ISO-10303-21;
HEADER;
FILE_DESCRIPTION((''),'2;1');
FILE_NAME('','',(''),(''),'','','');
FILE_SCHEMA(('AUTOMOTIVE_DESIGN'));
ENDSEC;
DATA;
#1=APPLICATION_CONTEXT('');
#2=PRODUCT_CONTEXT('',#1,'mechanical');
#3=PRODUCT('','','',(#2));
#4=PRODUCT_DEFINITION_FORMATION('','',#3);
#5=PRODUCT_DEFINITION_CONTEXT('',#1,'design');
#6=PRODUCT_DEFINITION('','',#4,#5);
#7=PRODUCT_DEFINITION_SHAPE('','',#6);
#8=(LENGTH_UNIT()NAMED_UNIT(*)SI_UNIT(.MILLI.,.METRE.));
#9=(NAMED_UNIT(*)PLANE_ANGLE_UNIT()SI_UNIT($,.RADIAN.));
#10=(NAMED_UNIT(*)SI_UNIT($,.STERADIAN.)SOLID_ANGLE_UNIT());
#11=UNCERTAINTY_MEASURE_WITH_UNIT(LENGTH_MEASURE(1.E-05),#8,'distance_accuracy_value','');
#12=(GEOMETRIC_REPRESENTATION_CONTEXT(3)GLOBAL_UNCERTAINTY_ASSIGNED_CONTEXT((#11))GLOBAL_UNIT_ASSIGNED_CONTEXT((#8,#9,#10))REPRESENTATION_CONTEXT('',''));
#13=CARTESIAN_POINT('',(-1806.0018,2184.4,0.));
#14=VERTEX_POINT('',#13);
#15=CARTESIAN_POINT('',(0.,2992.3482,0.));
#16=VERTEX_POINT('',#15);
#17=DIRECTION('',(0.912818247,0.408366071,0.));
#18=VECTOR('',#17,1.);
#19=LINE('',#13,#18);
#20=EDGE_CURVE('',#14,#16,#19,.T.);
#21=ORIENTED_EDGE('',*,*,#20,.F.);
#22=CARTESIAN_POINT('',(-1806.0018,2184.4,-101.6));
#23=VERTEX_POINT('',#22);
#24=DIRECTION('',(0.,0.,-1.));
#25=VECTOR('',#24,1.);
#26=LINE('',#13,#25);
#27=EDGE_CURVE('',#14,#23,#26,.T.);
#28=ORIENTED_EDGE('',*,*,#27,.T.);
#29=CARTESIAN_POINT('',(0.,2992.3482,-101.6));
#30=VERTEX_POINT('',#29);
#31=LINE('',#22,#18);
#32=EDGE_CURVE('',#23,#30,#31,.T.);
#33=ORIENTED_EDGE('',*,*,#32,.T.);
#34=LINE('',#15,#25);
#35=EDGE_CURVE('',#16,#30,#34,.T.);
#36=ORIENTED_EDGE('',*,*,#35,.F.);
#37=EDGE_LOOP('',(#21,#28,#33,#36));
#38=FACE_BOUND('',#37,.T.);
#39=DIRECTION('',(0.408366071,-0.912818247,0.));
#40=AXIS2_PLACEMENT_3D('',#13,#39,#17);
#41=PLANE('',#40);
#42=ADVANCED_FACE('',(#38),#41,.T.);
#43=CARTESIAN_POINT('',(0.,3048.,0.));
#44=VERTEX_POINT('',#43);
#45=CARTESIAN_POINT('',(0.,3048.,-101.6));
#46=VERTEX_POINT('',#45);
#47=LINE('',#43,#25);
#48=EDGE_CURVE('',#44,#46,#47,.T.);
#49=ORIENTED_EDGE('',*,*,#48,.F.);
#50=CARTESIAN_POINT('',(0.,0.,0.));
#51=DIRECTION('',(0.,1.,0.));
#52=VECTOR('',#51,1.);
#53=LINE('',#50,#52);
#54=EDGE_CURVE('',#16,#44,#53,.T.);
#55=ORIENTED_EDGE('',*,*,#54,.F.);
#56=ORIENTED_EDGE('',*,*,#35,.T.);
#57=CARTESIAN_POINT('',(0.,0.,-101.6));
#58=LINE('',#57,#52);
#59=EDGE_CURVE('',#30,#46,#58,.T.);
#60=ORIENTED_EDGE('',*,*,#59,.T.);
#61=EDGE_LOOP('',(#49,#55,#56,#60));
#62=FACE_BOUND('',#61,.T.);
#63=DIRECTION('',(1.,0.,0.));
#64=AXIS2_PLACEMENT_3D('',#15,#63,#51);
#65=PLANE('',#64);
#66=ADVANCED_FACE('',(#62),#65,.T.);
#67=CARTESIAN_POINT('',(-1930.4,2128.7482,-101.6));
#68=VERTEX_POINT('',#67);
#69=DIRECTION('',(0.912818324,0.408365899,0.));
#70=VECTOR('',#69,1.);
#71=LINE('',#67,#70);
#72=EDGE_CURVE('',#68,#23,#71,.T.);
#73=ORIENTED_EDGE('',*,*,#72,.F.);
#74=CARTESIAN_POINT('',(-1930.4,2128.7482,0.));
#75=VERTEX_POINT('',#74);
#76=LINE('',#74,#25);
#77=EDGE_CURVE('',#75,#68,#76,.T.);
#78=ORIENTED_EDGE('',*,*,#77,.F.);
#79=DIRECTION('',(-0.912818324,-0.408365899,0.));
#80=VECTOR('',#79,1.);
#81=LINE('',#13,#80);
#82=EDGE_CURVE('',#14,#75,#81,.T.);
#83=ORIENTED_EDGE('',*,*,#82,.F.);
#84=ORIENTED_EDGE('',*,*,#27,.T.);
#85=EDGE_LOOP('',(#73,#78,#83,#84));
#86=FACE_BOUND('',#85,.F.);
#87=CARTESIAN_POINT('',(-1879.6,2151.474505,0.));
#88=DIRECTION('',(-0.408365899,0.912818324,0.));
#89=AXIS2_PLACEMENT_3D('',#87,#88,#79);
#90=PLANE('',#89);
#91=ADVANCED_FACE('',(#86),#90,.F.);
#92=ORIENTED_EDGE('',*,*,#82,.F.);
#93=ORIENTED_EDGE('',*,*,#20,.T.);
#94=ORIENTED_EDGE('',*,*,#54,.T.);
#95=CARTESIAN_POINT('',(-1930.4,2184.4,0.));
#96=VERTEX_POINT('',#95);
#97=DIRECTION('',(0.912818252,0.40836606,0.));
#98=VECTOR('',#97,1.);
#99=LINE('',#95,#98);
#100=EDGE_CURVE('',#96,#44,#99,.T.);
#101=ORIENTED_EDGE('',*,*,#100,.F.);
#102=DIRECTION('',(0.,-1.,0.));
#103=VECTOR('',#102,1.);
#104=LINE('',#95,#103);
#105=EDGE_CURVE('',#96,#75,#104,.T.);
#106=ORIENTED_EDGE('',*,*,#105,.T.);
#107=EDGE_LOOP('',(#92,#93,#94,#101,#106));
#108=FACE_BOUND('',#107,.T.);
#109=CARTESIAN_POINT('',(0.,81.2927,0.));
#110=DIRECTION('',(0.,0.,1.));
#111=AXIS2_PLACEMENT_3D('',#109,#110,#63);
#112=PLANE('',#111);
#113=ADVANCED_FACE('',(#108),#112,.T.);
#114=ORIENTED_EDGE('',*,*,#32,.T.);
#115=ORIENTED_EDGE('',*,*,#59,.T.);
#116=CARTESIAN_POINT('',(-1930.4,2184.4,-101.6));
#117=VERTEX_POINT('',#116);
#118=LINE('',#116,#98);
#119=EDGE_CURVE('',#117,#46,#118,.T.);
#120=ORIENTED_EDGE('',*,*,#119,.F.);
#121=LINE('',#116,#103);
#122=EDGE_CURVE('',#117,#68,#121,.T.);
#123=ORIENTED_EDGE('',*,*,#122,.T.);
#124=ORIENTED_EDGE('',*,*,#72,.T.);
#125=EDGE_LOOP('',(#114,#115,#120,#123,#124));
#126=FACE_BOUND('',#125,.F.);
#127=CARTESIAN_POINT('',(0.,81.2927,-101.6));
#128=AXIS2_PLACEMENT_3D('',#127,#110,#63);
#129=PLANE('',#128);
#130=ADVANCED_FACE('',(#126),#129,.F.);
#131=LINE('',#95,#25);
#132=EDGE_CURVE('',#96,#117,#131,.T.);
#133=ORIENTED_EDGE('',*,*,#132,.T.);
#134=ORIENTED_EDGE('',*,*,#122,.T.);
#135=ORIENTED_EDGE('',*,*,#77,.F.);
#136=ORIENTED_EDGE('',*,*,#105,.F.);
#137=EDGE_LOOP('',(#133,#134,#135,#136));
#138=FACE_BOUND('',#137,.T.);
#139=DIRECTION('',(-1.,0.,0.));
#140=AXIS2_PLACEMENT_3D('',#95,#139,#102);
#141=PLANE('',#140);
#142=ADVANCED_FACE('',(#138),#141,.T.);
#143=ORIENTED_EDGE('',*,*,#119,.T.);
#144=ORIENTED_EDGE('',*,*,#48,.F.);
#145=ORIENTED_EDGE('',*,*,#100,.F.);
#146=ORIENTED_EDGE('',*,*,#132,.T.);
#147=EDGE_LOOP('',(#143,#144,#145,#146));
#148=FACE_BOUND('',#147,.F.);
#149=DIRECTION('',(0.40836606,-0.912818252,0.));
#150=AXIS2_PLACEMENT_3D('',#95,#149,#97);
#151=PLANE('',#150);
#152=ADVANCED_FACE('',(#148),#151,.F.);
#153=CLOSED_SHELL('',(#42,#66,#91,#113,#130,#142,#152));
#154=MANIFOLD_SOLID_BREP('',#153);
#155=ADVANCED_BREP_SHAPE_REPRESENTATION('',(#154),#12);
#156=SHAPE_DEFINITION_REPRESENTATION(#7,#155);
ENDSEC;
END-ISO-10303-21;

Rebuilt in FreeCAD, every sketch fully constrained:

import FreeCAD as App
import Part
import Sketcher

V = App.Vector
Q = App.Units.Quantity

doc = App.newDocument("Part")
body = doc.addObject("PartDesign::Body", "Body")

sketch1 = body.newObject("Sketcher::SketchObject", "Sketch")
sketch1.AttachmentSupport = (doc.getObject("XY_Plane"), [""])
sketch1.MapMode = "FlatFace"
sketch1.addGeometry([
    Part.LineSegment(V(-1930, 2184, 0), V(-1930, 2129, 0)),
    Part.LineSegment(V(-1930, 2129, 0), V(-1806, 2184, 0)),
    Part.LineSegment(V(-1806, 2184, 0), V(0, 2992, 0)),
    Part.LineSegment(V(0, 2992, 0), V(0, 3048, 0)),
    Part.LineSegment(V(0, 3048, 0), V(-1930, 2184, 0)),
], False)
sketch1.addConstraint([
    Sketcher.Constraint("Coincident", 0, 2, 1, 1),
    Sketcher.Constraint("Coincident", 1, 2, 2, 1),
    Sketcher.Constraint("Coincident", 2, 2, 3, 1),
    Sketcher.Constraint("Coincident", 3, 2, 4, 1),
    Sketcher.Constraint("Coincident", 4, 2, 0, 1),
    Sketcher.Constraint("Vertical", 0),
    Sketcher.Constraint("Vertical", 3),
    Sketcher.Constraint("PointOnObject", 2, 2, -2),
    Sketcher.Constraint("Parallel", 1, 2),
    Sketcher.Constraint("Parallel", 2, 4),
    Sketcher.Constraint("Horizontal", 1, 2, 4, 2),
    Sketcher.Constraint("DistanceX", 0, 2, -1, 1, Q("76 in")),
    Sketcher.Constraint("DistanceY", -1, 1, 1, 2, Q("86 in")),
    Sketcher.Constraint("DistanceY", -1, 1, 3, 2, Q("120 in")),
    Sketcher.Constraint("Distance", 2, Q("77.8933 in")),
])
pad1 = body.newObject("PartDesign::Pad", "Pad")
pad1.Profile = sketch1
pad1.Length = Q("4 in")
pad1.Reversed = True

doc.recompute()
